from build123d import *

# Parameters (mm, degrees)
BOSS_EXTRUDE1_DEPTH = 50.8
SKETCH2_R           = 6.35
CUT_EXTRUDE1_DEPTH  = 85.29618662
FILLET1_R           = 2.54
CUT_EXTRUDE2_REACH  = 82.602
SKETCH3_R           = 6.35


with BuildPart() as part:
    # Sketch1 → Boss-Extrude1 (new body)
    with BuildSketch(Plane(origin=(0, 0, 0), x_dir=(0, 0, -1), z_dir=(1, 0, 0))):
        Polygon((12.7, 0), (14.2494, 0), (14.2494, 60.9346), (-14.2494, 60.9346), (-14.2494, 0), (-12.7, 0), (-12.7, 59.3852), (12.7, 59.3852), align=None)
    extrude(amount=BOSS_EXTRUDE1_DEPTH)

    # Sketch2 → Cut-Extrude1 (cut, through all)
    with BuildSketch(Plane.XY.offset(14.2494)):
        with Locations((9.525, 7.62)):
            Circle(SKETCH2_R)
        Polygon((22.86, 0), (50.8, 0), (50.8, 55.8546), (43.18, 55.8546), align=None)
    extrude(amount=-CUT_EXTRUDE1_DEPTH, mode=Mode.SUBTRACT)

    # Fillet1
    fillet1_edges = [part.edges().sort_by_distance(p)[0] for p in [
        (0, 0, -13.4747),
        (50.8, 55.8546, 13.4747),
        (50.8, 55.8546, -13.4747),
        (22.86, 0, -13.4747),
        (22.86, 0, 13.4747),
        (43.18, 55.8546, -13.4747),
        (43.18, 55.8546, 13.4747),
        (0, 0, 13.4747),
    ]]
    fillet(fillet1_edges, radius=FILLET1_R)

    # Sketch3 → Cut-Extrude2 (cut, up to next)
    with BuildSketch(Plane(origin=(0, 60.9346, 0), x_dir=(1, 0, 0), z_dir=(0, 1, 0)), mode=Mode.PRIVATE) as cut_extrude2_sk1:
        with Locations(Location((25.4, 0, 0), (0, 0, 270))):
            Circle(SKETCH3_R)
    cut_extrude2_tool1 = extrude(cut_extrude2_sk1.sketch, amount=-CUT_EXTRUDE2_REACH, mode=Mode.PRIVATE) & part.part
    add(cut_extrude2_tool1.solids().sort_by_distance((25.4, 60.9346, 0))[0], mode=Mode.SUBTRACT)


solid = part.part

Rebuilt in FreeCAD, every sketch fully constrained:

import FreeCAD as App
import Part
import Sketcher

V = App.Vector
Q = App.Units.Quantity


def edges_at(feature, points):
    """Names of the edges that pass closest to the given points."""
    edges = feature.Shape.Edges
    near = lambda p: min(range(len(edges)), key=lambda i: edges[i].distToShape(Part.Vertex(*p))[0])
    return sorted({f"Edge{near(p) + 1}" for p in points})

doc = App.newDocument("Part")
body = doc.addObject("PartDesign::Body", "Body")

sketch1 = body.newObject("Sketcher::SketchObject", "Sketch")
sketch1.AttachmentSupport = (doc.getObject("YZ_Plane"), [""])
sketch1.MapMode = "FlatFace"
sketch1.addGeometry(Part.LineSegment(V(0, -12.7, 0), V(0, -14.2, 0)), False)
sketch1.addGeometry(Part.LineSegment(V(0, -14.2, 0), V(60.9, -14.2, 0)), False)
sketch1.addGeometry(Part.LineSegment(V(60.9, -14.2, 0), V(60.9, 14.2, 0)), False)
sketch1.addGeometry(Part.LineSegment(V(60.9, 14.2, 0), V(0, 14.2, 0)), False)
sketch1.addGeometry(Part.LineSegment(V(0, 14.2, 0), V(0, 12.7, 0)), False)
sketch1.addGeometry(Part.LineSegment(V(0, 12.7, 0), V(59.4, 12.7, 0)), False)
sketch1.addGeometry(Part.LineSegment(V(59.4, 12.7, 0), V(59.4, -12.7, 0)), False)
sketch1.addGeometry(Part.LineSegment(V(59.4, -12.7, 0), V(0, -12.7, 0)), False)
sketch1.addConstraint(Sketcher.Constraint("Coincident", 0, 2, 1, 1))
sketch1.addConstraint(Sketcher.Constraint("Coincident", 1, 2, 2, 1))
sketch1.addConstraint(Sketcher.Constraint("Coincident", 2, 2, 3, 1))
sketch1.addConstraint(Sketcher.Constraint("Coincident", 3, 2, 4, 1))
sketch1.addConstraint(Sketcher.Constraint("Coincident", 4, 2, 5, 1))
sketch1.addConstraint(Sketcher.Constraint("Coincident", 5, 2, 6, 1))
sketch1.addConstraint(Sketcher.Constraint("Coincident", 6, 2, 7, 1))
sketch1.addConstraint(Sketcher.Constraint("Coincident", 7, 2, 0, 1))
sketch1.addConstraint(Sketcher.Constraint("Vertical", 0))
sketch1.addConstraint(Sketcher.Constraint("Horizontal", 1))
sketch1.addConstraint(Sketcher.Constraint("Vertical", 2))
sketch1.addConstraint(Sketcher.Constraint("Horizontal", 3))
sketch1.addConstraint(Sketcher.Constraint("Vertical", 4))
sketch1.addConstraint(Sketcher.Constraint("Horizontal", 5))
sketch1.addConstraint(Sketcher.Constraint("Vertical", 6))
sketch1.addConstraint(Sketcher.Constraint("Horizontal", 7))
sketch1.addConstraint(Sketcher.Constraint("Symmetric", 0, 2, 3, 2, -1, 1))
sketch1.addConstraint(Sketcher.Constraint("Symmetric", 4, 2, 7, 2, -1))
sketch1.addConstraint(Sketcher.Constraint("DistanceY", 6, 2, 6, 1, Q("1 in")))
sketch1.addConstraint(Sketcher.Constraint("DistanceX", 1, 1, 1, 2, Q("2.399 in")))
sketch1.addConstraint(Sketcher.Constraint("DistanceX", 5, 1, 5, 2, Q("2.338 in")))
sketch1.addConstraint(Sketcher.Constraint("DistanceY", 0, 2, 0, 1, Q("0.061 in")))
pad1 = body.newObject("PartDesign::Pad", "Pad")
pad1.Profile = sketch1
pad1.Length = Q("2 in")

sketch2 = body.newObject("Sketcher::SketchObject", "Sketch001")
sketch2.AttachmentSupport = (doc.getObject("XY_Plane"), [""])
sketch2.MapMode = "FlatFace"
sketch2.AttachmentOffset = App.Placement(V(0, 0, 0.561 * 25.4), App.Rotation())
sketch2.addGeometry(Part.Circle(V(10, 8, 0), V(0, 0, 1), 6), False)
sketch2.addGeometry(Part.LineSegment(V(23, 0, 0), V(51, 0, 0)), False)
sketch2.addGeometry(Part.LineSegment(V(51, 0, 0), V(51, 56, 0)), False)
sketch2.addGeometry(Part.LineSegment(V(51, 56, 0), V(43, 56, 0)), False)
sketch2.addGeometry(Part.LineSegment(V(43, 56, 0), V(23, 0, 0)), False)
sketch2.addConstraint(Sketcher.Constraint("Coincident", 1, 2, 2, 1))
sketch2.addConstraint(Sketcher.Constraint("Coincident", 2, 2, 3, 1))
sketch2.addConstraint(Sketcher.Constraint("Coincident", 3, 2, 4, 1))
sketch2.addConstraint(Sketcher.Constraint("Coincident", 4, 2, 1, 1))
sketch2.addConstraint(Sketcher.Constraint("Horizontal", 1))
sketch2.addConstraint(Sketcher.Constraint("Vertical", 2))
sketch2.addConstraint(Sketcher.Constraint("Horizontal", 3))
sketch2.addConstraint(Sketcher.Constraint("PointOnObject", 1, 2, -1))
sketch2.addConstraint(Sketcher.Constraint("Diameter", 0, Q("0.5 in")))
sketch2.addConstraint(Sketcher.Constraint("DistanceX", 1, 1, 1, 2, Q("1.1 in")))
sketch2.addConstraint(Sketcher.Constraint("DistanceX", 3, 2, 3, 1, Q("0.3 in")))
sketch2.addConstraint(Sketcher.Constraint("DistanceX", -1, 1, 1, 2, Q("2 in")))
sketch2.addConstraint(Sketcher.Constraint("DistanceY", -1, 1, 0, 3, Q("0.3 in")))
sketch2.addConstraint(Sketcher.Constraint("DistanceY", 2, 1, 2, 2, Q("2.199 in")))
sketch2.addConstraint(Sketcher.Constraint("DistanceX", -1, 1, 0, 3, Q("0.375 in")))
pocket1 = body.newObject("PartDesign::Pocket", "Pocket")
pocket1.Profile = sketch2
pocket1.Type = "ThroughAll"
doc.recompute()

fillet = body.newObject("PartDesign::Fillet", "Fillet")
fillet.Base = (pocket1, edges_at(pocket1, [
    (0, 0, -13.475),
    (50.8, 55.855, 13.475),
    (50.8, 55.855, -13.475),
    (22.86, 0, -13.475),
    (22.86, 0, 13.475),
    (43.18, 55.855, -13.475),
    (43.18, 55.855, 13.475),
    (0, 0, 13.475),
]))
fillet.Radius = Q("0.1 in")

sketch3 = body.newObject("Sketcher::SketchObject", "Sketch002")
sketch3.AttachmentSupport = (doc.getObject("XZ_Plane"), [""])
sketch3.MapMode = "FlatFace"
sketch3.AttachmentOffset = App.Placement(V(0, 0, -2.399 * 25.4), App.Rotation())
sketch3.addGeometry(Part.Circle(V(25, 0, 0), V(0, 0, 1), 6), False)
sketch3.addConstraint(Sketcher.Constraint("PointOnObject", 0, 3, -1))
sketch3.addConstraint(Sketcher.Constraint("Diameter", 0, Q("0.5 in")))
sketch3.addConstraint(Sketcher.Constraint("DistanceX", -1, 1, 0, 3, Q("1 in")))
pocket2 = body.newObject("PartDesign::Pocket", "Pocket001")
pocket2.Profile = sketch3
pocket2.Type = "UpToFirst"
pocket2.Reversed = True

doc.recompute()
